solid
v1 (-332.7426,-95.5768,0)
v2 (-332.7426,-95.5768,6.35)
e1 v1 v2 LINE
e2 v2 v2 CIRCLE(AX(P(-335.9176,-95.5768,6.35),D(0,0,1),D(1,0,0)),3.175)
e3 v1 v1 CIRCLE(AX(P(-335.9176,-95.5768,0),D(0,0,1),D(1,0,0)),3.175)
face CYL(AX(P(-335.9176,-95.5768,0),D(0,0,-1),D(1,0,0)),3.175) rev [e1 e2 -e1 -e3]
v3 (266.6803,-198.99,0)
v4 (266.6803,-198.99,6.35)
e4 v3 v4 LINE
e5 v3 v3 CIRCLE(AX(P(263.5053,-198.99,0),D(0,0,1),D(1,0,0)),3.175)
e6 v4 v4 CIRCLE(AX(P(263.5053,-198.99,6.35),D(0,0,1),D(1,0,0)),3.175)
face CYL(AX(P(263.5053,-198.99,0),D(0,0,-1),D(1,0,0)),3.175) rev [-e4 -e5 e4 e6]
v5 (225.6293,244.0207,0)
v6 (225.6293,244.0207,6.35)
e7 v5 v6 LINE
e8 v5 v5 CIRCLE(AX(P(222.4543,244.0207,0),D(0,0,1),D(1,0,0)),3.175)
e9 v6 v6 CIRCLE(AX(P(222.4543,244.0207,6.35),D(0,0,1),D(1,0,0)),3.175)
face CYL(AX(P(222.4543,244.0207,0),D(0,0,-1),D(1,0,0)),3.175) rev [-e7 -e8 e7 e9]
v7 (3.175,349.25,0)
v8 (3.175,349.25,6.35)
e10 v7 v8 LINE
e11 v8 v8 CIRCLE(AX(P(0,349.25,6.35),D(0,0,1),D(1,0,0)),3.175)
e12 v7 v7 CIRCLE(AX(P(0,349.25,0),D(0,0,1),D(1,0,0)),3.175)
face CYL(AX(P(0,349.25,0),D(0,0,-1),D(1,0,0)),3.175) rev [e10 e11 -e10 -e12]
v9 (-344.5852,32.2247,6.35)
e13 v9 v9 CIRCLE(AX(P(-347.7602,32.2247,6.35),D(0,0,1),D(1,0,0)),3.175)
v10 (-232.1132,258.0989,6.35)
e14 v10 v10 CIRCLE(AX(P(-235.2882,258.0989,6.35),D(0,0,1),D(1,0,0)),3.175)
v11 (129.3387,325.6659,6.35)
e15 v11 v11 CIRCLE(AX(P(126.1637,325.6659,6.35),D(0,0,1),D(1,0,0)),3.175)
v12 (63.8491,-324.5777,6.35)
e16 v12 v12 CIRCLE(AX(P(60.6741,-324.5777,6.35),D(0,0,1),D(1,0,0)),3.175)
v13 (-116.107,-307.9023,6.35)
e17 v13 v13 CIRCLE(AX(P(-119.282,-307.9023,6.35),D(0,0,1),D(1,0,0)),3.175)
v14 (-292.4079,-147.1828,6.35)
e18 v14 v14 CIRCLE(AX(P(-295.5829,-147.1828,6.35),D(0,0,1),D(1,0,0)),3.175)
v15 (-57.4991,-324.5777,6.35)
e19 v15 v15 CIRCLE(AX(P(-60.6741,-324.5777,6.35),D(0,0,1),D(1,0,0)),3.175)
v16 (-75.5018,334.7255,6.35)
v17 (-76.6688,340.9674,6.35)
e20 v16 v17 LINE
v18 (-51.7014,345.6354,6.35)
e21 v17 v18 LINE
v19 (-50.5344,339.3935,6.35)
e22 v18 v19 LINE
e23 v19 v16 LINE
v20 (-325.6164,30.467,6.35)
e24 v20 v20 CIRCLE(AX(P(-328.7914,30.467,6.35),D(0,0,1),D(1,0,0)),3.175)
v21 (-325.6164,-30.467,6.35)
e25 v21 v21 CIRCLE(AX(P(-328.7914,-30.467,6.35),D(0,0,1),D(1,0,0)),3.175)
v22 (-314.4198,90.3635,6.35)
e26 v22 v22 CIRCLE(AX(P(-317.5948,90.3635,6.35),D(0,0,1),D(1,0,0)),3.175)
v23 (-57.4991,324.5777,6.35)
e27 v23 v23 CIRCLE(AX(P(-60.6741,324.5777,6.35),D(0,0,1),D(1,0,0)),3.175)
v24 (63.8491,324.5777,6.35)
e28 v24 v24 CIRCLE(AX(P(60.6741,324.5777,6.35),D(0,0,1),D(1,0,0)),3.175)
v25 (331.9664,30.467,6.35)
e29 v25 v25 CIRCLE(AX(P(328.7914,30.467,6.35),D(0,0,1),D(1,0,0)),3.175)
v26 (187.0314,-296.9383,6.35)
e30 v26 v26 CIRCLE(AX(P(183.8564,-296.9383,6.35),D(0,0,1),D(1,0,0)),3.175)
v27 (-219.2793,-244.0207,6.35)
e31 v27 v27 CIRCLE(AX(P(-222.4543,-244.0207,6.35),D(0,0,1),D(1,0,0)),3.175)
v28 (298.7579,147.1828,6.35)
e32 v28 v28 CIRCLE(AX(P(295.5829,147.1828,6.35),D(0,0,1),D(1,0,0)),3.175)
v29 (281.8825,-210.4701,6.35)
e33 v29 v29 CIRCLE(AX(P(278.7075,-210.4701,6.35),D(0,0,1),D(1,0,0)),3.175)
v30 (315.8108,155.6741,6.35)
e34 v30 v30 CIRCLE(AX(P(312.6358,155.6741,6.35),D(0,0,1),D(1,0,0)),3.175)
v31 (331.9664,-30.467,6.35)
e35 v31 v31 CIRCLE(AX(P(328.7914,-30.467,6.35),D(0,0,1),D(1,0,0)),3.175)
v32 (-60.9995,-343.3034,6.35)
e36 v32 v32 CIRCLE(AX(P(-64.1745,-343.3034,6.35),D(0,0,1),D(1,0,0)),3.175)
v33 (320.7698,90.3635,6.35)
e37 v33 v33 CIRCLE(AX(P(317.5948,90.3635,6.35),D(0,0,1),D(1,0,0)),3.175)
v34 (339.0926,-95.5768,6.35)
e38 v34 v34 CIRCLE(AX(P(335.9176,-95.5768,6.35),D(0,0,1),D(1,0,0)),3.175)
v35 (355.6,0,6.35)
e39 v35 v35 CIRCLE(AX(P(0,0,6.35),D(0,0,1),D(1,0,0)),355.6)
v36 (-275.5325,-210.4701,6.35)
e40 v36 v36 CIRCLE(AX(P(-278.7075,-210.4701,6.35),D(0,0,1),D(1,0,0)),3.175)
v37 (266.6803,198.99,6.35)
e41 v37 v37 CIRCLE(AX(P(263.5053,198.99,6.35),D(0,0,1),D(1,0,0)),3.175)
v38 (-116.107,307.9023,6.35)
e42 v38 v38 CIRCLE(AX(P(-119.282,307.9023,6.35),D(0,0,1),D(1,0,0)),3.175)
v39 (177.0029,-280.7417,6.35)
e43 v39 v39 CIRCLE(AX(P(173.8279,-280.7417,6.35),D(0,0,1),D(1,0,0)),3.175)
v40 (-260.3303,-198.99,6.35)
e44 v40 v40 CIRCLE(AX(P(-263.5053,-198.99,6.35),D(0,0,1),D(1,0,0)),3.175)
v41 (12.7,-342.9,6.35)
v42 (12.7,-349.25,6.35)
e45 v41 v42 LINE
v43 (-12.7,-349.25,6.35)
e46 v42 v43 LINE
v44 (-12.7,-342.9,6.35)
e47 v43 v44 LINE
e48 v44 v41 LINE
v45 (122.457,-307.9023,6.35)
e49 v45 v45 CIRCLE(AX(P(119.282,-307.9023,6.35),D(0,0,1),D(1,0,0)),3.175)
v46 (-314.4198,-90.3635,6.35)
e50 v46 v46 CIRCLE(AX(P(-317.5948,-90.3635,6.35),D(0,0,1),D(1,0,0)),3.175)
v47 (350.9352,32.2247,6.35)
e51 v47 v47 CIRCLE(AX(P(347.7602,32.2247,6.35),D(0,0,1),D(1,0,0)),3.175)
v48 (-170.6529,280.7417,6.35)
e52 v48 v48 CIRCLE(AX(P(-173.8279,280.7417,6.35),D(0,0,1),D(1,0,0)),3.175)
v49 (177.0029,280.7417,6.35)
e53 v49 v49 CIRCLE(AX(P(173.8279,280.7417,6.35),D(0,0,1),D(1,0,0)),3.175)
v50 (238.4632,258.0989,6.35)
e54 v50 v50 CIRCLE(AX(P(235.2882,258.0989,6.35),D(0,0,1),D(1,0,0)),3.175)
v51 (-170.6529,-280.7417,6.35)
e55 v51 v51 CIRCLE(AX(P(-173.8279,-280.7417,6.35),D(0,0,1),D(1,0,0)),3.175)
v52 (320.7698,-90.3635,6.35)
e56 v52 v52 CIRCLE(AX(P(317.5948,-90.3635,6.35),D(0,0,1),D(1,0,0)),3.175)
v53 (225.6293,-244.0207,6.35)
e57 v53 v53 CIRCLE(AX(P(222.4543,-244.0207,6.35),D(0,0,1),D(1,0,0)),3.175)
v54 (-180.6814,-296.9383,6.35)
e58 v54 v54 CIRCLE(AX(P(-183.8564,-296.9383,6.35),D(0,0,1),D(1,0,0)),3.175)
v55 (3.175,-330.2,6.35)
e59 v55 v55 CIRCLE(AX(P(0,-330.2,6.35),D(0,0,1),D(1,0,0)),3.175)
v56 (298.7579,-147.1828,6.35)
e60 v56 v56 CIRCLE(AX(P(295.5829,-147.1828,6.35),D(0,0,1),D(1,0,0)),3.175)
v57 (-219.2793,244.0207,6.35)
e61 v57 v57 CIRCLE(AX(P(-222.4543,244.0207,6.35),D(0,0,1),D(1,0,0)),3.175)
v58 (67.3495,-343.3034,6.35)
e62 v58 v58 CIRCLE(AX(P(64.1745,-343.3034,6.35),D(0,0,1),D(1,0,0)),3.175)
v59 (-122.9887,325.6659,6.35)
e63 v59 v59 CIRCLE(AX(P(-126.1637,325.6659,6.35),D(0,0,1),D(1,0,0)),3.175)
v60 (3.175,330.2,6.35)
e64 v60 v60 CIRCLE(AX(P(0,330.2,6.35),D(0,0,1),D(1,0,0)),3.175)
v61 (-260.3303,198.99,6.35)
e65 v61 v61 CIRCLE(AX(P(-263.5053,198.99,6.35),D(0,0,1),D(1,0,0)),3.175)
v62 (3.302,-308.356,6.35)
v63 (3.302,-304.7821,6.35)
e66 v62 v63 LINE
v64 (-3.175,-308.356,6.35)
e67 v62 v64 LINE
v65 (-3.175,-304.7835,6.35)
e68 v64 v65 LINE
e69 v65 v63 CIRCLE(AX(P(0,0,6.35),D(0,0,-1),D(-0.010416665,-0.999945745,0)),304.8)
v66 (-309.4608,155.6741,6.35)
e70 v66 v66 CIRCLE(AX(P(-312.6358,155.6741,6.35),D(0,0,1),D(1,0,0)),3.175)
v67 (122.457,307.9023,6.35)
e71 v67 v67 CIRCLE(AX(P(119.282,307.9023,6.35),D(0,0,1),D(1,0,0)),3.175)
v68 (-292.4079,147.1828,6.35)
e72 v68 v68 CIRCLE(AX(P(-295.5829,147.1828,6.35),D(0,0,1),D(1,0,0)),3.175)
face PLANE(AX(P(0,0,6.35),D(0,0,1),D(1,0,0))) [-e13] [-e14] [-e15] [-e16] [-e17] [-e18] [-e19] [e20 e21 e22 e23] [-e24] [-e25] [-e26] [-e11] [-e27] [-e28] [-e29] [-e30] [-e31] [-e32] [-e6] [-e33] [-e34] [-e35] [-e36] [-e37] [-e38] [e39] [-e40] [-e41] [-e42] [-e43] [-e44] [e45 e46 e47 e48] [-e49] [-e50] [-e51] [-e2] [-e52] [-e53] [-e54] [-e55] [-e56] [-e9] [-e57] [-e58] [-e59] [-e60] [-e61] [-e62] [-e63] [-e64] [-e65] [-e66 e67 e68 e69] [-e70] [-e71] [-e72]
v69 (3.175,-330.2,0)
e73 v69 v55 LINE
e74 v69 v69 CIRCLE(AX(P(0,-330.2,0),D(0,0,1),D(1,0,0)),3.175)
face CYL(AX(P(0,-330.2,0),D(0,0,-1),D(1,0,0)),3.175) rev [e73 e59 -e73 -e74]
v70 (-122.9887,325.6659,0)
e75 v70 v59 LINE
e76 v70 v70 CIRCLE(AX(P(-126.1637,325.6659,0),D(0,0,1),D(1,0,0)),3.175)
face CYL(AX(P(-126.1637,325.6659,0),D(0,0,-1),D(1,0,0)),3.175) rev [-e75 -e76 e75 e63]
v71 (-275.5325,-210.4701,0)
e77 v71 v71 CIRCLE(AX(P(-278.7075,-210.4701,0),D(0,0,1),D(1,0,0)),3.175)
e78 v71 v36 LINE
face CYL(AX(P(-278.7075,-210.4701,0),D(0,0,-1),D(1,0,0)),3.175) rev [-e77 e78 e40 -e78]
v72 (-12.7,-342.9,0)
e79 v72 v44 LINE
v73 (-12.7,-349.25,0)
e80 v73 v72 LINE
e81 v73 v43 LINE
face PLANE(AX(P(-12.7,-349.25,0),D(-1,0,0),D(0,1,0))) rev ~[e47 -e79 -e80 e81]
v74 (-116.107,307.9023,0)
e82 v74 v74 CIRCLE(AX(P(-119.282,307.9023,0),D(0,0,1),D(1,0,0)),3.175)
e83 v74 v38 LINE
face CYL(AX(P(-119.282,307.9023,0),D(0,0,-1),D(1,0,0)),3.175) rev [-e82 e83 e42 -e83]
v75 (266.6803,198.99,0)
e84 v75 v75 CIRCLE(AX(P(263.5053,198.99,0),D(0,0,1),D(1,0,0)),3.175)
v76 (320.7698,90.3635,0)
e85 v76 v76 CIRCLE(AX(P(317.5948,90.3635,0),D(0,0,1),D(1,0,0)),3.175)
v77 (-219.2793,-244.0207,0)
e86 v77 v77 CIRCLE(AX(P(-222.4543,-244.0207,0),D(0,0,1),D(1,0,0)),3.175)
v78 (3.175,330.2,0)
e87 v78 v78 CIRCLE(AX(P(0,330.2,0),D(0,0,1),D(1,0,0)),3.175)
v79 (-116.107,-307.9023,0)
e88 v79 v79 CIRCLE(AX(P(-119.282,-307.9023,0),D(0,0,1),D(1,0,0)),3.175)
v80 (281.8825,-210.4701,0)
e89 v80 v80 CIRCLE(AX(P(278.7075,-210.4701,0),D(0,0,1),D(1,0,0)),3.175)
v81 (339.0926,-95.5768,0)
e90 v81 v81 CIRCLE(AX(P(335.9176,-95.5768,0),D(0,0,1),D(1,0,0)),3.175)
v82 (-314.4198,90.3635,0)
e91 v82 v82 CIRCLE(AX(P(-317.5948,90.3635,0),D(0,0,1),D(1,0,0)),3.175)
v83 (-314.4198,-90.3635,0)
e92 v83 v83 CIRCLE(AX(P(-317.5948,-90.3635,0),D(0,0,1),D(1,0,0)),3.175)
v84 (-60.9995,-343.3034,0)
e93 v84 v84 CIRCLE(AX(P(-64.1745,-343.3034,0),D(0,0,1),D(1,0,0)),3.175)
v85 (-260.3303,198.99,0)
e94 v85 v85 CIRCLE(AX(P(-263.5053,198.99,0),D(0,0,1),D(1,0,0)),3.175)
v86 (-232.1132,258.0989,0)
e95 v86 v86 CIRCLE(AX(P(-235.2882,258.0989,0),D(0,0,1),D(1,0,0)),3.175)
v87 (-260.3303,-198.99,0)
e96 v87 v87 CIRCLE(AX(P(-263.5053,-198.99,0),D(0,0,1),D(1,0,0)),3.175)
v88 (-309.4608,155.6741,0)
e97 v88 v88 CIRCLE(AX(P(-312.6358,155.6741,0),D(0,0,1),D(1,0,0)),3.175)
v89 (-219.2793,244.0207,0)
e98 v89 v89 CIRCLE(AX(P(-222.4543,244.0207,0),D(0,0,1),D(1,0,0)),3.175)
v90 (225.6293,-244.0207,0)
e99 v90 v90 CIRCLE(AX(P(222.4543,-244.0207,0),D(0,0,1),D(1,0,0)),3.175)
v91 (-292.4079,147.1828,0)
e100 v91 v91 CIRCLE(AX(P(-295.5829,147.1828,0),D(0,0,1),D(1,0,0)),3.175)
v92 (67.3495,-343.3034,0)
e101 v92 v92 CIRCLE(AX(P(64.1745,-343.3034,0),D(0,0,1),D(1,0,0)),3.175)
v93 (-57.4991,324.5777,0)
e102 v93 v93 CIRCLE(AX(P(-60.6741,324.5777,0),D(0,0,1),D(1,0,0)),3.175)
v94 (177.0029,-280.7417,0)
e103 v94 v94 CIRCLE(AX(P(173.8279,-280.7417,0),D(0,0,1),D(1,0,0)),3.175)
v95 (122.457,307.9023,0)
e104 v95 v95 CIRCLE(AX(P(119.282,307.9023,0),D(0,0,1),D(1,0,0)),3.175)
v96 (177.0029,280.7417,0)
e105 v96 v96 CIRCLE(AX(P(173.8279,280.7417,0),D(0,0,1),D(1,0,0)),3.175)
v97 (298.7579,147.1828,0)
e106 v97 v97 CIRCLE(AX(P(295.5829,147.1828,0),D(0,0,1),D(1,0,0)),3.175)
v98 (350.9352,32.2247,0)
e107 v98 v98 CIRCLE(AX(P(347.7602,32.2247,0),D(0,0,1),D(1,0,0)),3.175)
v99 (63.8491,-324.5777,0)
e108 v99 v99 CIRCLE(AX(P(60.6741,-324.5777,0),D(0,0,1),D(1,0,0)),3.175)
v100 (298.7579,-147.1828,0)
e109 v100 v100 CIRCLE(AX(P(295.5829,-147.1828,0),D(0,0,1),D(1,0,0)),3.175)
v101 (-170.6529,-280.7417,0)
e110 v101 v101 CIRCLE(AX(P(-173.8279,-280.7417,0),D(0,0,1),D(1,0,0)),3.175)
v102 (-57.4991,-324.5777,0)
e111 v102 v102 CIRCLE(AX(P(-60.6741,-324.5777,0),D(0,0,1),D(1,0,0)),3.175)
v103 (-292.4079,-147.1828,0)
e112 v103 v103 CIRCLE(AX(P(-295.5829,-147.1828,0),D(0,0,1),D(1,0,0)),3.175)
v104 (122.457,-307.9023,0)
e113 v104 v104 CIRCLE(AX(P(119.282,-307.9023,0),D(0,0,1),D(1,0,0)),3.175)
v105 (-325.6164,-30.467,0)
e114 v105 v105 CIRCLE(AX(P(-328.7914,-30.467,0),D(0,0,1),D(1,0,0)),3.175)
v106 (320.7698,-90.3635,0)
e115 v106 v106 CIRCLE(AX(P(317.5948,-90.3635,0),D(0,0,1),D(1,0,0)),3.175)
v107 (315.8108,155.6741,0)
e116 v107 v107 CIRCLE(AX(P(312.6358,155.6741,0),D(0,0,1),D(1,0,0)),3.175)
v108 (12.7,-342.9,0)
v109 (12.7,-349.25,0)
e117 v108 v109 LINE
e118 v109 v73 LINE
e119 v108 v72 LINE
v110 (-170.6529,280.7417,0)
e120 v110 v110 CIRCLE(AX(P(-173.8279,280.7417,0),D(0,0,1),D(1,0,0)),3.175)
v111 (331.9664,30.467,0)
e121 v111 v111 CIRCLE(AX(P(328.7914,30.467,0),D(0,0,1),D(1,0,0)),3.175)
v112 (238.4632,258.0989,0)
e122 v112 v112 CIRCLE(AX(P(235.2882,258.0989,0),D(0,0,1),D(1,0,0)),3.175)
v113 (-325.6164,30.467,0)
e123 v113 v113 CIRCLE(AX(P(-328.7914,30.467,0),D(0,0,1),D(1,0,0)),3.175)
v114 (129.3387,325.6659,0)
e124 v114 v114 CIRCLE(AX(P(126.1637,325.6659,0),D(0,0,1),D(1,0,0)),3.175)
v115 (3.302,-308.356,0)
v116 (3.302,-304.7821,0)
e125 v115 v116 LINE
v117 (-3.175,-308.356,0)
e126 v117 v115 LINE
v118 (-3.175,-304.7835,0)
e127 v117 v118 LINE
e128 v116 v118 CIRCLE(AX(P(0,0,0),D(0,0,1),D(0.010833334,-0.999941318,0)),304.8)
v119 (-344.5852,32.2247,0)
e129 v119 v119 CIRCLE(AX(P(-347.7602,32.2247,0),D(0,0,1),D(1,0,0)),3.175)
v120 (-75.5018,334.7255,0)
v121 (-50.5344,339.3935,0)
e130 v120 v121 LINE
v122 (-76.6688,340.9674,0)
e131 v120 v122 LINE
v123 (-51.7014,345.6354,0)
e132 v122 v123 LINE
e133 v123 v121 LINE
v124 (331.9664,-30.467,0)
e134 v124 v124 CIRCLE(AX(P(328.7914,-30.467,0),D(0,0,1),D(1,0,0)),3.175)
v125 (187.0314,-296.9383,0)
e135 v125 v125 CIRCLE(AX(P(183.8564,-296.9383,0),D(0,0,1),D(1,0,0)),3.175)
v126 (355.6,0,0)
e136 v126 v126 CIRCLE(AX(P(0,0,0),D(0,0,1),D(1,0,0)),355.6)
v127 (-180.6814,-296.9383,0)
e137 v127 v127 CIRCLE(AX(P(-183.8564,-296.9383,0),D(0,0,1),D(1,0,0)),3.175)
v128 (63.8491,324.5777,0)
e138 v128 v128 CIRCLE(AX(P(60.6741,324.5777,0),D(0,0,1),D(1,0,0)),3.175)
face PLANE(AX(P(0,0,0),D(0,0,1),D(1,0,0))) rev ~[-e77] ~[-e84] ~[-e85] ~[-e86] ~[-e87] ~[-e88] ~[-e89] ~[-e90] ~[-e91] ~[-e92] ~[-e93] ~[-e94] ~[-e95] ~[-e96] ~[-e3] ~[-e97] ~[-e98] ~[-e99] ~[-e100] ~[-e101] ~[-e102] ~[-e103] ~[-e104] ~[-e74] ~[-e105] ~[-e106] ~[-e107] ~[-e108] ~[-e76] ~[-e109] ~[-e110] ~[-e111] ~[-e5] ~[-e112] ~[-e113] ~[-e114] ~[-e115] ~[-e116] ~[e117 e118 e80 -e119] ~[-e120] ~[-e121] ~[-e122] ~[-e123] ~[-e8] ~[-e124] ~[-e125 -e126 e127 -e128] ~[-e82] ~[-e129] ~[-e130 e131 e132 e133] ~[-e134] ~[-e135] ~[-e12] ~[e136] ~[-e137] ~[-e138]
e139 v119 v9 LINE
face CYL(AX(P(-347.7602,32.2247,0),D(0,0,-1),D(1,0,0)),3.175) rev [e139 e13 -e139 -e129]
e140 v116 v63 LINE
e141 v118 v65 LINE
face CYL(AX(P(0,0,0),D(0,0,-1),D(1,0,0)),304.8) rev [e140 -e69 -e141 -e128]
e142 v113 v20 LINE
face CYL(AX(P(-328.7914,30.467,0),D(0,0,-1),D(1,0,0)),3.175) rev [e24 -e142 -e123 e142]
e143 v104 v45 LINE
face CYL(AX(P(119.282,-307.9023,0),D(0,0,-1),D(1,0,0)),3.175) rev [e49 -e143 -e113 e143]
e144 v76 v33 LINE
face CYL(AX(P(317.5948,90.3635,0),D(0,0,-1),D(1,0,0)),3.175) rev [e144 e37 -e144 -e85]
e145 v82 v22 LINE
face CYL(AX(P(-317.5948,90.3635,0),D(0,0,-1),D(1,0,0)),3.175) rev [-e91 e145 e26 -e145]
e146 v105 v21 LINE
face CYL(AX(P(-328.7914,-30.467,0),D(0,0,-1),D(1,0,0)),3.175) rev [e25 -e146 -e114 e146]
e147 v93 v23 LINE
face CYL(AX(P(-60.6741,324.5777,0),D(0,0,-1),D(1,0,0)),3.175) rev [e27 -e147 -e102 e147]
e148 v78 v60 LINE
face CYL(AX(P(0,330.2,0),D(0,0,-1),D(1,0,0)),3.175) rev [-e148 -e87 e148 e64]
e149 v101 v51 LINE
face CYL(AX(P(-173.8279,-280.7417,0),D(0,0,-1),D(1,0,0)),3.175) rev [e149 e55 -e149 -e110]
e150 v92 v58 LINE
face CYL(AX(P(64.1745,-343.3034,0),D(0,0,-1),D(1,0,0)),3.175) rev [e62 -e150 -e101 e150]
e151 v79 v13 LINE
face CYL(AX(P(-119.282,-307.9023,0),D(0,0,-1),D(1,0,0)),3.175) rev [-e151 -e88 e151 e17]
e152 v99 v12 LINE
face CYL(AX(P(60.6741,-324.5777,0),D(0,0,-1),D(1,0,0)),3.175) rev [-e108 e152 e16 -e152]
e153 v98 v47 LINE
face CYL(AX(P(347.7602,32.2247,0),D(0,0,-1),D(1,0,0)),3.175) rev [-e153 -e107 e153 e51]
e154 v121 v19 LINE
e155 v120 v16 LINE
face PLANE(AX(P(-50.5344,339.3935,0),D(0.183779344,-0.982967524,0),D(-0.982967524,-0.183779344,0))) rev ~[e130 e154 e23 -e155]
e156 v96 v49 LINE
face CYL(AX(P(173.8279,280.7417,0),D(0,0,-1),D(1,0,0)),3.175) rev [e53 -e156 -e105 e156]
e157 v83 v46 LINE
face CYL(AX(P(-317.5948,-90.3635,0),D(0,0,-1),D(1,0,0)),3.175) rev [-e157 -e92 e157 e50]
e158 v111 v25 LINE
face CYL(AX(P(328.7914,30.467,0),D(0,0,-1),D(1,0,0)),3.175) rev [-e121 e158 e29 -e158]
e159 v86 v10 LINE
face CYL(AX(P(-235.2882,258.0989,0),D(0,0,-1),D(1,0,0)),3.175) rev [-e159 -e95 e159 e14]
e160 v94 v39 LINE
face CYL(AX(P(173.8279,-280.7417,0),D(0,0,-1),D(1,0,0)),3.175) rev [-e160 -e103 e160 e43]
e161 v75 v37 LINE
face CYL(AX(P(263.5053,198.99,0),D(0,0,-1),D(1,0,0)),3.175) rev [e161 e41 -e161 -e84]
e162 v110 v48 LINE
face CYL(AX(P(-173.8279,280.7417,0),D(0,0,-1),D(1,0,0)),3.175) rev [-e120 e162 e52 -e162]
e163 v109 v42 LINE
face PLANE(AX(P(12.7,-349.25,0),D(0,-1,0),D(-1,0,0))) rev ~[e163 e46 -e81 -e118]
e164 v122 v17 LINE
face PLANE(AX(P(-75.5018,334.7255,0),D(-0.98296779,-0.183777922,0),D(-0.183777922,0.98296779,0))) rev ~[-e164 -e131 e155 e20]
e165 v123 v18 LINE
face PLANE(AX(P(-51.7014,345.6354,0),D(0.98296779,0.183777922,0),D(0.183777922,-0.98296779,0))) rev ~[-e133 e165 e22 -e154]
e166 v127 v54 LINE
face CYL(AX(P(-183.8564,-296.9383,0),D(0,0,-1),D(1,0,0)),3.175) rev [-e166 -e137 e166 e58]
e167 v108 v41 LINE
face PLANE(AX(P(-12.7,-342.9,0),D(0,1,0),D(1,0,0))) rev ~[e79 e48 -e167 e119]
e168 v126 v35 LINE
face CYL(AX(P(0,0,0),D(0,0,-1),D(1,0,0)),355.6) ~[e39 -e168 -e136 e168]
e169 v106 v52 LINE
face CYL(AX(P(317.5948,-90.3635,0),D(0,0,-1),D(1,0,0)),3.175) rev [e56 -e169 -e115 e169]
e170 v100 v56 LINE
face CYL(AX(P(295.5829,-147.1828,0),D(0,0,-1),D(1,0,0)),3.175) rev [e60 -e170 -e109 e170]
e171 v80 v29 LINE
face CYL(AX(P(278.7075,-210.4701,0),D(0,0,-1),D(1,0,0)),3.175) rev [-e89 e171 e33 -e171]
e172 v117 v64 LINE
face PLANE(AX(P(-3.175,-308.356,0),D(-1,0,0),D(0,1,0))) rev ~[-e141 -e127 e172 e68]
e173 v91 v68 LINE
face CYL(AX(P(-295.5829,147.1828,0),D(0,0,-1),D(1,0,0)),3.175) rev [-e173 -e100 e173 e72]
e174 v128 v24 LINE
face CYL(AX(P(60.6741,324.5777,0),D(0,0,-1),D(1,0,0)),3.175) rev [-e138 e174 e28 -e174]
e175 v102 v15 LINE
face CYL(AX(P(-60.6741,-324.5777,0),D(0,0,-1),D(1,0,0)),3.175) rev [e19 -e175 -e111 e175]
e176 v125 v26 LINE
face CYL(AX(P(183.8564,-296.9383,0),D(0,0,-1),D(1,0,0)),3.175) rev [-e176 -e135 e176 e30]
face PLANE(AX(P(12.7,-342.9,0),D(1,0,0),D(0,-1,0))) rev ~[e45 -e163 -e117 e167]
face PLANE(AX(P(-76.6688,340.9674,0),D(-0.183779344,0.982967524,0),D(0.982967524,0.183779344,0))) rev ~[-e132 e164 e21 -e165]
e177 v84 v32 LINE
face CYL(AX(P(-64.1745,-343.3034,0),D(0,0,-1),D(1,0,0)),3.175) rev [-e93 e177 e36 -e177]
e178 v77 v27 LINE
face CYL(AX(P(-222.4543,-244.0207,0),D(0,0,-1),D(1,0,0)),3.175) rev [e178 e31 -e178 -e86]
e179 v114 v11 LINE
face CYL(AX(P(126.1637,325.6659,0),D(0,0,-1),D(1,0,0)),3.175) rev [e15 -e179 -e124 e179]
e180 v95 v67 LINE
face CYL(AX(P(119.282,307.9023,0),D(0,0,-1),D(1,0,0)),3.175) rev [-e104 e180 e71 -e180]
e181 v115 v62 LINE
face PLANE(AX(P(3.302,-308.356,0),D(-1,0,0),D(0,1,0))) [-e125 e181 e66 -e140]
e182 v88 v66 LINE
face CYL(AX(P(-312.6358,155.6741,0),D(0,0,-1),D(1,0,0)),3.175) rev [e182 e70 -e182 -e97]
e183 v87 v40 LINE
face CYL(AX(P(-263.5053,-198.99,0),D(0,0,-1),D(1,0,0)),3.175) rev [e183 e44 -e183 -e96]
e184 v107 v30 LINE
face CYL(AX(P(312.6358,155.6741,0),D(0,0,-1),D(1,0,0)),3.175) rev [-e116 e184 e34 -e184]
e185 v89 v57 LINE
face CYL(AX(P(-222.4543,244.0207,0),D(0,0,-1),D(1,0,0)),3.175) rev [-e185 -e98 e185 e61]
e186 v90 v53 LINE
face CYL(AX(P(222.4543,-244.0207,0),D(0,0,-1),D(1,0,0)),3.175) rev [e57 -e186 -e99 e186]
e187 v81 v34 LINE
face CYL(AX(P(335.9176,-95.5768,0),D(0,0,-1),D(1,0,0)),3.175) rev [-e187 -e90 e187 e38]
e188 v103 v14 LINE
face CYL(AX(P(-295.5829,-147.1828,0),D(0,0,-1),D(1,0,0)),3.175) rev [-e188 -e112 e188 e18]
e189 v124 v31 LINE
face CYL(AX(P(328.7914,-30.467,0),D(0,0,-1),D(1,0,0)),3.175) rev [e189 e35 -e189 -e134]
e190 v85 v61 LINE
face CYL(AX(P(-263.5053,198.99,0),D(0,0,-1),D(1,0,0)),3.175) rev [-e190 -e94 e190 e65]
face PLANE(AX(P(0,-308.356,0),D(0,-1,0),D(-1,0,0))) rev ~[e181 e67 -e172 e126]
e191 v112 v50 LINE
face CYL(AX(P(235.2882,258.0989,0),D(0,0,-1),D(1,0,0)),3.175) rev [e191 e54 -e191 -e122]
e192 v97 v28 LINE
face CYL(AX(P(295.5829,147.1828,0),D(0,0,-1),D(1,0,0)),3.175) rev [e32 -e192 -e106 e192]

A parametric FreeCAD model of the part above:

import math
import FreeCAD as App
import Part
import Sketcher
Q = App.Units.Quantity

doc = App.newDocument("Part")
params = doc.addObject("Spreadsheet::Sheet", "Params")
for row, (alias, value) in enumerate([
    ("sketch1_diameter", "28 in"),
    ("sketch1_radius", "12 in"),
    ("sketch1_diameter2", "0.25 in"),
    ("sketch1_width", "1 in"),
    ("sketch1_length", "1 in"),
    ("pad1_length", "0.25 in"),
], start=1):
    params.set(f"A{row}", alias)
    params.set(f"B{row}", "=" + value)
    params.setAlias(f"B{row}", alias)

body = doc.addObject("PartDesign::Body", "Body")

sketch1 = body.newObject("Sketcher::SketchObject", "Sketch")
sketch1.AttachmentSupport = (doc.getObject("XY_Plane"), [""])
sketch1.MapMode = "FlatFace"
sketch1.addGeometry(Part.Circle(App.Vector(0, 0, 0), App.Vector(0, 0, 1), 355.6), False)
sketch1.addGeometry(Part.Circle(App.Vector(-183.9, -296.9, 0), App.Vector(0, 0, 1), 3.2), False)
sketch1.addGeometry(Part.Circle(App.Vector(-278.7, -210.5, 0), App.Vector(0, 0, 1), 3.2), False)
sketch1.addGeometry(Part.Circle(App.Vector(-222.5, -244, 0), App.Vector(0, 0, 1), 3.2), False)
sketch1.addGeometry(Part.Circle(App.Vector(-263.5, -199, 0), App.Vector(0, 0, 1), 3.2), False)
sketch1.addGeometry(Part.Circle(App.Vector(-173.8, -280.7, 0), App.Vector(0, 0, 1), 3.2), False)
sketch1.addGeometry(Part.Circle(App.Vector(-119.3, -307.9, 0), App.Vector(0, 0, 1), 3.2), False)
sketch1.addGeometry(Part.Circle(App.Vector(-64.2, -343.3, 0), App.Vector(0, 0, 1), 3.2), False)
sketch1.addGeometry(Part.Circle(App.Vector(-60.7, -324.6, 0), App.Vector(0, 0, 1), 3.2), False)
sketch1.addGeometry(Part.Circle(App.Vector(-295.6, -147.2, 0), App.Vector(0, 0, 1), 3.2), False)
sketch1.addGeometry(Part.Circle(App.Vector(-335.9, -95.6, 0), App.Vector(0, 0, 1), 3.2), False)
sketch1.addGeometry(Part.Circle(App.Vector(-317.6, -90.4, 0), App.Vector(0, 0, 1), 3.2), False)
sketch1.addGeometry(Part.Circle(App.Vector(-328.8, -30.5, 0), App.Vector(0, 0, 1), 3.2), False)
sketch1.addGeometry(Part.LineSegment(App.Vector(-12.7, -342.9, 0), App.Vector(12.7, -342.9, 0)), False)
sketch1.addGeometry(Part.LineSegment(App.Vector(12.7, -342.9, 0), App.Vector(12.7, -349.2, 0)), False)
sketch1.addGeometry(Part.LineSegment(App.Vector(12.7, -349.2, 0), App.Vector(-12.7, -349.2, 0)), False)
sketch1.addGeometry(Part.LineSegment(App.Vector(-12.7, -349.2, 0), App.Vector(-12.7, -342.9, 0)), False)
sketch1.addGeometry(Part.Circle(App.Vector(0, -330.2, 0), App.Vector(0, 0, 1), 3.2), False)
sketch1.addGeometry(Part.Circle(App.Vector(64.2, -343.3, 0), App.Vector(0, 0, 1), 3.2), False)
sketch1.addGeometry(Part.Circle(App.Vector(60.7, -324.6, 0), App.Vector(0, 0, 1), 3.2), False)
sketch1.addGeometry(Part.Circle(App.Vector(119.3, -307.9, 0), App.Vector(0, 0, 1), 3.2), False)
sketch1.addGeometry(Part.Circle(App.Vector(173.8, -280.7, 0), App.Vector(0, 0, 1), 3.2), False)
sketch1.addGeometry(Part.Circle(App.Vector(183.9, -296.9, 0), App.Vector(0, 0, 1), 3.2), False)
sketch1.addGeometry(Part.Circle(App.Vector(222.5, -244, 0), App.Vector(0, 0, 1), 3.2), False)
sketch1.addGeometry(Part.Circle(App.Vector(263.5, -199, 0), App.Vector(0, 0, 1), 3.2), False)
sketch1.addGeometry(Part.Circle(App.Vector(278.7, -210.5, 0), App.Vector(0, 0, 1), 3.2), False)
sketch1.addGeometry(Part.LineSegment(App.Vector(3.3, -304.8, 0), App.Vector(3.3, -308.4, 0)), False)
sketch1.addGeometry(Part.LineSegment(App.Vector(3.3, -308.4, 0), App.Vector(-3.2, -308.4, 0)), False)
sketch1.addGeometry(Part.LineSegment(App.Vector(-3.2, -308.4, 0), App.Vector(-3.2, -304.8, 0)), False)
sketch1.addGeometry(Part.ArcOfCircle(Part.Circle(App.Vector(0, 0, 0), App.Vector(0, 0, 1), 304.8), math.radians(-89), math.radians(269)), False)
sketch1.addGeometry(Part.Circle(App.Vector(295.6, -147.2, 0), App.Vector(0, 0, 1), 3.2), False)
sketch1.addGeometry(Part.Circle(App.Vector(317.6, -90.4, 0), App.Vector(0, 0, 1), 3.2), False)
sketch1.addGeometry(Part.Circle(App.Vector(335.9, -95.6, 0), App.Vector(0, 0, 1), 3.2), False)
sketch1.addGeometry(Part.Circle(App.Vector(328.8, -30.5, 0), App.Vector(0, 0, 1), 3.2), False)
sketch1.addGeometry(Part.Circle(App.Vector(-347.8, 32.2, 0), App.Vector(0, 0, 1), 3.2), False)
sketch1.addGeometry(Part.Circle(App.Vector(-328.8, 30.5, 0), App.Vector(0, 0, 1), 3.2), False)
sketch1.addGeometry(Part.Circle(App.Vector(-317.6, 90.4, 0), App.Vector(0, 0, 1), 3.2), False)
sketch1.addGeometry(Part.Circle(App.Vector(-312.6, 155.7, 0), App.Vector(0, 0, 1), 3.2), False)
sketch1.addGeometry(Part.Circle(App.Vector(-295.6, 147.2, 0), App.Vector(0, 0, 1), 3.2), False)
sketch1.addGeometry(Part.Circle(App.Vector(-263.5, 199, 0), App.Vector(0, 0, 1), 3.2), False)
sketch1.addGeometry(Part.Circle(App.Vector(-222.5, 244, 0), App.Vector(0, 0, 1), 3.2), False)
sketch1.addGeometry(Part.Circle(App.Vector(-235.3, 258.1, 0), App.Vector(0, 0, 1), 3.2), False)
sketch1.addGeometry(Part.Circle(App.Vector(-173.8, 280.7, 0), App.Vector(0, 0, 1), 3.2), False)
sketch1.addGeometry(Part.Circle(App.Vector(-119.3, 307.9, 0), App.Vector(0, 0, 1), 3.2), False)
sketch1.addGeometry(Part.Circle(App.Vector(-126.2, 325.7, 0), App.Vector(0, 0, 1), 3.2), False)
sketch1.addGeometry(Part.Circle(App.Vector(-60.7, 324.6, 0), App.Vector(0, 0, 1), 3.2), False)
sketch1.addGeometry(Part.LineSegment(App.Vector(-50.5, 339.4, 0), App.Vector(-75.5, 334.7, 0)), False)
sketch1.addGeometry(Part.LineSegment(App.Vector(-75.5, 334.7, 0), App.Vector(-76.7, 341, 0)), False)
sketch1.addGeometry(Part.LineSegment(App.Vector(-76.7, 341, 0), App.Vector(-51.7, 345.6, 0)), False)
sketch1.addGeometry(Part.LineSegment(App.Vector(-51.7, 345.6, 0), App.Vector(-50.5, 339.4, 0)), False)
sketch1.addGeometry(Part.Circle(App.Vector(328.8, 30.5, 0), App.Vector(0, 0, 1), 3.2), False)
sketch1.addGeometry(Part.Circle(App.Vector(347.8, 32.2, 0), App.Vector(0, 0, 1), 3.2), False)
sketch1.addGeometry(Part.Circle(App.Vector(317.6, 90.4, 0), App.Vector(0, 0, 1), 3.2), False)
sketch1.addGeometry(Part.Circle(App.Vector(295.6, 147.2, 0), App.Vector(0, 0, 1), 3.2), False)
sketch1.addGeometry(Part.Circle(App.Vector(312.6, 155.7, 0), App.Vector(0, 0, 1), 3.2), False)
sketch1.addGeometry(Part.Circle(App.Vector(0, 330.2, 0), App.Vector(0, 0, 1), 3.2), False)
sketch1.addGeometry(Part.Circle(App.Vector(0, 349.2, 0), App.Vector(0, 0, 1), 3.2), False)
sketch1.addGeometry(Part.Circle(App.Vector(60.7, 324.6, 0), App.Vector(0, 0, 1), 3.2), False)
sketch1.addGeometry(Part.Circle(App.Vector(119.3, 307.9, 0), App.Vector(0, 0, 1), 3.2), False)
sketch1.addGeometry(Part.Circle(App.Vector(173.8, 280.7, 0), App.Vector(0, 0, 1), 3.2), False)
sketch1.addGeometry(Part.Circle(App.Vector(126.2, 325.7, 0), App.Vector(0, 0, 1), 3.2), False)
sketch1.addGeometry(Part.Circle(App.Vector(263.5, 199, 0), App.Vector(0, 0, 1), 3.2), False)
sketch1.addGeometry(Part.Circle(App.Vector(222.5, 244, 0), App.Vector(0, 0, 1), 3.2), False)
sketch1.addGeometry(Part.Circle(App.Vector(235.3, 258.1, 0), App.Vector(0, 0, 1), 3.2), False)
sketch1.addConstraint(Sketcher.Constraint("Coincident", 13, 2, 14, 1))
sketch1.addConstraint(Sketcher.Constraint("Coincident", 14, 2, 15, 1))
sketch1.addConstraint(Sketcher.Constraint("Coincident", 15, 2, 16, 1))
sketch1.addConstraint(Sketcher.Constraint("Coincident", 16, 2, 13, 1))
sketch1.addConstraint(Sketcher.Constraint("Coincident", 26, 2, 27, 1))
sketch1.addConstraint(Sketcher.Constraint("Coincident", 27, 2, 28, 1))
sketch1.addConstraint(Sketcher.Constraint("Coincident", 28, 2, 29, 2))
sketch1.addConstraint(Sketcher.Constraint("Coincident", 29, 1, 26, 1))
sketch1.addConstraint(Sketcher.Constraint("Coincident", 46, 2, 47, 1))
sketch1.addConstraint(Sketcher.Constraint("Coincident", 47, 2, 48, 1))
sketch1.addConstraint(Sketcher.Constraint("Coincident", 48, 2, 49, 1))
sketch1.addConstraint(Sketcher.Constraint("Coincident", 49, 2, 46, 1))
sketch1.addConstraint(Sketcher.Constraint("Horizontal", 13))
sketch1.addConstraint(Sketcher.Constraint("Vertical", 14))
sketch1.addConstraint(Sketcher.Constraint("Horizontal", 15))
sketch1.addConstraint(Sketcher.Constraint("Vertical", 16))
sketch1.addConstraint(Sketcher.Constraint("Vertical", 26))
sketch1.addConstraint(Sketcher.Constraint("Horizontal", 27))
sketch1.addConstraint(Sketcher.Constraint("Vertical", 28))
sketch1.addConstraint(Sketcher.Constraint("Coincident", 0, 3, -1, 1))
sketch1.addConstraint(Sketcher.Constraint("Coincident", 29, 3, -1, 1))
sketch1.addConstraint(Sketcher.Constraint("Equal", 1, 2))
sketch1.addConstraint(Sketcher.Constraint("Equal", 2, 3))
sketch1.addConstraint(Sketcher.Constraint("Equal", 3, 4))
sketch1.addConstraint(Sketcher.Constraint("Equal", 4, 5))
sketch1.addConstraint(Sketcher.Constraint("Equal", 5, 6))
sketch1.addConstraint(Sketcher.Constraint("Equal", 6, 7))
sketch1.addConstraint(Sketcher.Constraint("Equal", 7, 8))
sketch1.addConstraint(Sketcher.Constraint("Equal", 8, 9))
sketch1.addConstraint(Sketcher.Constraint("Equal", 9, 10))
sketch1.addConstraint(Sketcher.Constraint("Equal", 10, 11))
sketch1.addConstraint(Sketcher.Constraint("Equal", 11, 12))
sketch1.addConstraint(Sketcher.Constraint("Equal", 12, 17))
sketch1.addConstraint(Sketcher.Constraint("Equal", 17, 18))
sketch1.addConstraint(Sketcher.Constraint("Equal", 18, 19))
sketch1.addConstraint(Sketcher.Constraint("Equal", 19, 20))
sketch1.addConstraint(Sketcher.Constraint("Equal", 20, 21))
sketch1.addConstraint(Sketcher.Constraint("Equal", 21, 22))
sketch1.addConstraint(Sketcher.Constraint("Equal", 22, 23))
sketch1.addConstraint(Sketcher.Constraint("Equal", 23, 24))
sketch1.addConstraint(Sketcher.Constraint("Equal", 24, 25))
sketch1.addConstraint(Sketcher.Constraint("Equal", 25, 30))
sketch1.addConstraint(Sketcher.Constraint("Equal", 30, 31))
sketch1.addConstraint(Sketcher.Constraint("Equal", 31, 32))
sketch1.addConstraint(Sketcher.Constraint("Equal", 32, 33))
sketch1.addConstraint(Sketcher.Constraint("Equal", 33, 34))
sketch1.addConstraint(Sketcher.Constraint("Equal", 34, 35))
sketch1.addConstraint(Sketcher.Constraint("Equal", 35, 36))
sketch1.addConstraint(Sketcher.Constraint("Equal", 36, 37))
sketch1.addConstraint(Sketcher.Constraint("Equal", 37, 38))
sketch1.addConstraint(Sketcher.Constraint("Equal", 38, 39))
sketch1.addConstraint(Sketcher.Constraint("Equal", 39, 40))
sketch1.addConstraint(Sketcher.Constraint("Equal", 40, 41))
sketch1.addConstraint(Sketcher.Constraint("Equal", 41, 42))
sketch1.addConstraint(Sketcher.Constraint("Equal", 42, 43))
sketch1.addConstraint(Sketcher.Constraint("Equal", 43, 44))
sketch1.addConstraint(Sketcher.Constraint("Equal", 44, 45))
sketch1.addConstraint(Sketcher.Constraint("Equal", 45, 50))
sketch1.addConstraint(Sketcher.Constraint("Equal", 50, 51))
sketch1.addConstraint(Sketcher.Constraint("Equal", 51, 52))
sketch1.addConstraint(Sketcher.Constraint("Equal", 52, 53))
sketch1.addConstraint(Sketcher.Constraint("Equal", 53, 54))
sketch1.addConstraint(Sketcher.Constraint("Equal", 54, 55))
sketch1.addConstraint(Sketcher.Constraint("Equal", 55, 56))
sketch1.addConstraint(Sketcher.Constraint("Equal", 56, 57))
sketch1.addConstraint(Sketcher.Constraint("Equal", 57, 58))
sketch1.addConstraint(Sketcher.Constraint("Equal", 58, 59))
sketch1.addConstraint(Sketcher.Constraint("Equal", 59, 60))
sketch1.addConstraint(Sketcher.Constraint("Equal", 60, 61))
sketch1.addConstraint(Sketcher.Constraint("Equal", 61, 62))
sketch1.addConstraint(Sketcher.Constraint("Equal", 62, 63))
sketch1.addConstraint(Sketcher.Constraint("Symmetric", 33, 3, 35, 3, -1, 1))
sketch1.addConstraint(Sketcher.Constraint("Symmetric", 31, 3, 36, 3, -1, 1))
sketch1.addConstraint(Sketcher.Constraint("Symmetric", 30, 3, 38, 3, -1, 1))
sketch1.addConstraint(Sketcher.Constraint("Symmetric", 24, 3, 39, 3, -1, 1))
sketch1.addConstraint(Sketcher.Constraint("Symmetric", 23, 3, 40, 3, -1, 1))
sketch1.addConstraint(Sketcher.Constraint("Symmetric", 21, 3, 42, 3, -1, 1))
sketch1.addConstraint(Sketcher.Constraint("Symmetric", 20, 3, 43, 3, -1, 1))
sketch1.addConstraint(Sketcher.Constraint("Symmetric", 19, 3, 45, 3, -1, 1))
sketch1.addConstraint(Sketcher.Constraint("Symmetric", 12, 3, 50, 3, -1, 1))
sketch1.addConstraint(Sketcher.Constraint("Symmetric", 11, 3, 52, 3, -1, 1))
sketch1.addConstraint(Sketcher.Constraint("Symmetric", 9, 3, 53, 3, -1, 1))
sketch1.addConstraint(Sketcher.Constraint("Symmetric", 17, 3, 55, 3, -1, 1))
sketch1.addConstraint(Sketcher.Constraint("Symmetric", 8, 3, 57, 3, -1, 1))
sketch1.addConstraint(Sketcher.Constraint("Symmetric", 6, 3, 58, 3, -1, 1))
sketch1.addConstraint(Sketcher.Constraint("Symmetric", 5, 3, 59, 3, -1, 1))
sketch1.addConstraint(Sketcher.Constraint("Symmetric", 4, 3, 61, 3, -1, 1))
sketch1.addConstraint(Sketcher.Constraint("Symmetric", 3, 3, 62, 3, -1, 1))
sketch1.addConstraint(Sketcher.Constraint("Symmetric", 7, 3, 18, 3, -2))
sketch1.addConstraint(Sketcher.Constraint("Symmetric", 8, 3, 19, 3, -2))
sketch1.addConstraint(Sketcher.Constraint("Symmetric", 6, 3, 20, 3, -2))
sketch1.addConstraint(Sketcher.Constraint("Symmetric", 5, 3, 21, 3, -2))
sketch1.addConstraint(Sketcher.Constraint("Symmetric", 1, 3, 22, 3, -2))
sketch1.addConstraint(Sketcher.Constraint("Symmetric", 3, 3, 23, 3, -2))
sketch1.addConstraint(Sketcher.Constraint("Symmetric", 4, 3, 24, 3, -2))
sketch1.addConstraint(Sketcher.Constraint("Symmetric", 2, 3, 25, 3, -2))
sketch1.addConstraint(Sketcher.Constraint("Symmetric", 9, 3, 30, 3, -2))
sketch1.addConstraint(Sketcher.Constraint("Symmetric", 11, 3, 31, 3, -2))
sketch1.addConstraint(Sketcher.Constraint("Symmetric", 10, 3, 32, 3, -2))
sketch1.addConstraint(Sketcher.Constraint("Symmetric", 12, 3, 33, 3, -2))
sketch1.addConstraint(Sketcher.Constraint("Symmetric", 34, 3, 51, 3, -2))
sketch1.addConstraint(Sketcher.Constraint("Symmetric", 37, 3, 54, 3, -2))
sketch1.addConstraint(Sketcher.Constraint("Symmetric", 44, 3, 60, 3, -2))
sketch1.addConstraint(Sketcher.Constraint("Symmetric", 41, 3, 63, 3, -2))
sketch1.addConstraint(Sketcher.Constraint("PointOnObject", 17, 3, -2))
sketch1.addConstraint(Sketcher.Constraint("PointOnObject", 56, 3, -2))
sketch1.addConstraint(Sketcher.Constraint("Perpendicular", 46, 47))
sketch1.addConstraint(Sketcher.Constraint("Perpendicular", 47, 48))
sketch1.addConstraint(Sketcher.Constraint("Perpendicular", 48, 49))
sketch1.addConstraint(Sketcher.Constraint("Diameter", 0, Q("28 in")))
sketch1.addConstraint(Sketcher.Constraint("Radius", 29, Q("12 in")))
sketch1.addConstraint(Sketcher.Constraint("Diameter", 1, Q("0.25 in")))
sketch1.addConstraint(Sketcher.Constraint("DistanceX", 13, 1, 13, 2, Q("1 in")))
sketch1.addConstraint(Sketcher.Constraint("Distance", 46, Q("1 in")))
sketch1.addConstraint(Sketcher.Constraint("DistanceY", 14, 2, 14, 1, Q("0.25 in")))
sketch1.addConstraint(Sketcher.Constraint("DistanceX", -1, 1, 13, 2, Q("0.5 in")))
sketch1.addConstraint(Sketcher.Constraint("DistanceY", 13, 2, -1, 1, Q("13.5 in")))
sketch1.addConstraint(Sketcher.Constraint("Distance", 47, Q("0.25 in")))
sketch1.addConstraint(Sketcher.Constraint("DistanceX", -1, 1, 26, 2, Q("0.13 in")))
sketch1.addConstraint(Sketcher.Constraint("DistanceY", 17, 3, -1, 1, Q("13 in")))
sketch1.addConstraint(Sketcher.Constraint("DistanceX", 27, 2, 27, 1, Q("0.255 in")))
sketch1.addConstraint(Sketcher.Constraint("DistanceY", -1, 1, 56, 3, Q("13.75 in")))
sketch1.addConstraint(Sketcher.Constraint("DistanceY", 26, 2, -1, 1, Q("12.14 in")))
sketch1.addConstraint(Sketcher.Constraint("Angle", 46, Q("-169.41 deg")))
sketch1.addConstraint(Sketcher.Constraint("DistanceY", 9, 3, -1, 1, Q("5.7946 in")))
sketch1.addConstraint(Sketcher.Constraint("DistanceX", 10, 3, -1, 1, Q("13.2251 in")))
sketch1.addConstraint(Sketcher.Constraint("DistanceY", 12, 3, -1, 1, Q("1.1995 in")))
sketch1.addConstraint(Sketcher.Constraint("DistanceY", -1, 1, 34, 3, Q("1.2687 in")))
sketch1.addConstraint(Sketcher.Constraint("DistanceX", 37, 3, -1, 1, Q("12.3085 in")))
sketch1.addConstraint(Sketcher.Constraint("DistanceY", -1, 1, 37, 3, Q("6.1289 in")))
sketch1.addConstraint(Sketcher.Constraint("DistanceY", -1, 1, 44, 3, Q("12.8215 in")))
sketch1.addConstraint(Sketcher.Constraint("DistanceX", 46, 2, -1, 1, Q("2.9725 in")))
sketch1.addConstraint(Sketcher.Constraint("DistanceY", -1, 1, 48, 2, Q("13.6077 in")))
sketch1.addConstraint(Sketcher.Constraint("DistanceX", 1, 3, -1, 1, 183.8564))
sketch1.addConstraint(Sketcher.Constraint("DistanceY", 1, 3, -1, 1, 296.9383))
sketch1.addConstraint(Sketcher.Constraint("DistanceX", 2, 3, -1, 1, 278.7075))
sketch1.addConstraint(Sketcher.Constraint("DistanceY", 2, 3, -1, 1, 210.47))
sketch1.addConstraint(Sketcher.Constraint("DistanceX", 3, 3, -1, 1, 222.4543))
sketch1.addConstraint(Sketcher.Constraint("DistanceY", 3, 3, -1, 1, 244.0207))
sketch1.addConstraint(Sketcher.Constraint("DistanceX", 4, 3, -1, 1, 263.5053))
sketch1.addConstraint(Sketcher.Constraint("DistanceY", 4, 3, -1, 1, 198.99))
sketch1.addConstraint(Sketcher.Constraint("DistanceX", 5, 3, -1, 1, 173.828))
sketch1.addConstraint(Sketcher.Constraint("DistanceY", 5, 3, -1, 1, 280.7417))
sketch1.addConstraint(Sketcher.Constraint("DistanceX", 6, 3, -1, 1, 119.282))
sketch1.addConstraint(Sketcher.Constraint("DistanceY", 6, 3, -1, 1, 307.9023))
sketch1.addConstraint(Sketcher.Constraint("DistanceX", 7, 3, -1, 1, 64.1745))
sketch1.addConstraint(Sketcher.Constraint("DistanceY", 7, 3, -1, 1, 343.3034))
sketch1.addConstraint(Sketcher.Constraint("DistanceX", 8, 3, -1, 1, 60.674))
sketch1.addConstraint(Sketcher.Constraint("DistanceY", 8, 3, -1, 1, 324.5777))
sketch1.addConstraint(Sketcher.Constraint("DistanceX", 9, 3, -1, 1, 295.583))
sketch1.addConstraint(Sketcher.Constraint("DistanceY", 10, 3, -1, 1, 95.5768))
sketch1.addConstraint(Sketcher.Constraint("DistanceX", 11, 3, -1, 1, 317.5948))
sketch1.addConstraint(Sketcher.Constraint("DistanceY", 11, 3, -1, 1, 90.3635))
sketch1.addConstraint(Sketcher.Constraint("DistanceX", 12, 3, -1, 1, 328.7914))
sketch1.addConstraint(Sketcher.Constraint("DistanceX", 34, 3, -1, 1, 347.7602))
sketch1.addConstraint(Sketcher.Constraint("DistanceX", 41, 3, -1, 1, 235.2882))
sketch1.addConstraint(Sketcher.Constraint("DistanceY", -1, 1, 41, 3, 258.099))
sketch1.addConstraint(Sketcher.Constraint("DistanceX", 44, 3, -1, 1, 126.1637))
sketch1.setExpression("Constraints[109]", "Params.sketch1_diameter")
sketch1.setExpression("Constraints[110]", "Params.sketch1_radius")
sketch1.setExpression("Constraints[111]", "Params.sketch1_diameter2")
sketch1.setExpression("Constraints[112]", "Params.sketch1_width")
sketch1.setExpression("Constraints[113]", "Params.sketch1_length")
pad1 = body.newObject("PartDesign::Pad", "Pad")
pad1.Profile = sketch1
pad1.setExpression("Length", "Params.pad1_length")

doc.recompute()
